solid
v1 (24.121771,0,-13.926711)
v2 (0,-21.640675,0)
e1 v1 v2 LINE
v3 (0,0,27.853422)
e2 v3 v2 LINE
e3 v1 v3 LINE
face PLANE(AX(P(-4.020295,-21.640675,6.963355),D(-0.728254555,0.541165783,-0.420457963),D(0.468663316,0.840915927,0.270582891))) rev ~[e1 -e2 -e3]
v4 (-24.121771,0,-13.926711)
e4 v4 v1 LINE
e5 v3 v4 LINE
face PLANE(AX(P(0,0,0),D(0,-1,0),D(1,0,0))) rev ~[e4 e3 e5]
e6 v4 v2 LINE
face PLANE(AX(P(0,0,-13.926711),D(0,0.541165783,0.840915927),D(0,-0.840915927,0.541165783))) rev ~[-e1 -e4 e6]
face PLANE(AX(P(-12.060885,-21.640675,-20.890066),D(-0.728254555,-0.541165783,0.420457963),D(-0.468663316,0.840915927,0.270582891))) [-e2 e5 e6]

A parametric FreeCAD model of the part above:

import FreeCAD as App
import Part
import Sketcher

V = App.Vector
Q = App.Units.Quantity

doc = App.newDocument("Part")
body = doc.addObject("PartDesign::Body", "Body")

# Sketch on XZ plane
sketch1 = body.newObject("Sketcher::SketchObject", "Sketch")
sketch1.AttachmentSupport = (doc.getObject("XZ_Plane"), [""])
sketch1.MapMode = "FlatFace"
sketch1.addGeometry([
    Part.LineSegment(V(0, 28, 0), V(-24, -14, 0)),
    Part.LineSegment(V(-24, -14, 0), V(24, -14, 0)),
    Part.LineSegment(V(24, -14, 0), V(0, 28, 0)),
], False)
sketch1.addConstraint([
    Sketcher.Constraint("Coincident", 0, 2, 1, 1),
    Sketcher.Constraint("Coincident", 1, 2, 2, 1),
    Sketcher.Constraint("Coincident", 2, 2, 0, 1),
    Sketcher.Constraint("Horizontal", 1),
    Sketcher.Constraint("PointOnObject", 2, 2, -2),
    Sketcher.Constraint("Equal", 0, 2),
    Sketcher.Constraint("Angle", 0, Q("-120 deg")),
    Sketcher.Constraint("DistanceX", 1, 1, 1, 2, 48.243541),
    Sketcher.Constraint("DistanceY", 0, 2, -1, 1, 13.926711),
])
pad1 = body.newObject("PartDesign::Pad", "Pad")
pad1.Profile = sketch1
pad1.Length = Q("2 in")

# Sketch on YZ plane
sketch2 = body.newObject("Sketcher::SketchObject", "Sketch001")
sketch2.AttachmentSupport = (doc.getObject("YZ_Plane"), [""])
sketch2.MapMode = "FlatFace"
sketch2.addGeometry([
    Part.LineSegment(V(-4, -24, 0), V(0, -14, 0)),  # 0
    Part.LineSegment(V(0, -14, 0), V(-22, 0, 0)),  # 1
    Part.LineSegment(V(-22, 0, 0), V(-53, 0, 0)),  # 2
    Part.LineSegment(V(-53, 0, 0), V(-53, -20, 0)),  # 3
    Part.LineSegment(V(-53, -20, 0), V(-4, -24, 0)),  # 4
], False)
sketch2.addConstraint([
    Sketcher.Constraint("Coincident", 0, 2, 1, 1),
    Sketcher.Constraint("Coincident", 1, 2, 2, 1),
    Sketcher.Constraint("Coincident", 2, 2, 3, 1),
    Sketcher.Constraint("Coincident", 3, 2, 4, 1),
    Sketcher.Constraint("Coincident", 4, 2, 0, 1),
    Sketcher.Constraint("Horizontal", 2),
    Sketcher.Constraint("Vertical", 3),
    Sketcher.Constraint("PointOnObject", 0, 2, -2),
    Sketcher.Constraint("PointOnObject", 1, 2, -1),
    Sketcher.Constraint("DistanceX", 2, 2, 2, 1, 31.807469),
    Sketcher.Constraint("DistanceY", 3, 2, 3, 1, 20.189162),
    Sketcher.Constraint("DistanceY", 0, 2, -1, 1, 13.926711),
    Sketcher.Constraint("DistanceY", 4, 2, 3, 2, 3.499851),
    Sketcher.Constraint("Distance", 0, 10.604428),
    Sketcher.Constraint("Distance", 1, 25.734648),
])
pocket1 = body.newObject("PartDesign::Pocket", "Pocket")
pocket1.Profile = sketch2
pocket1.Length = Q("3 in")
pocket1.Midplane = True

# Sketch on an angled plane
sketch3 = body.newObject("Sketcher::SketchObject", "Sketch002")
sketch3.Placement = App.Placement(V(-12.060885, 0, -20.890066), App.Rotation(V(0.866025404, 0, -0.5), V(0, 1, 0), V(0.5, 0, 0.866025404), "ZXY"))
sketch3.addGeometry([
    Part.LineSegment(V(0, -22, 0), V(-14, 0, 0)),
    Part.LineSegment(V(-14, 0, 0), V(-24, -57, 0)),
    Part.LineSegment(V(-24, -57, 0), V(0, -59, 0)),
    Part.LineSegment(V(0, -59, 0), V(0, -22, 0)),
], False)
sketch3.addConstraint([
    Sketcher.Constraint("Coincident", 0, 2, 1, 1),
    Sketcher.Constraint("Coincident", 1, 2, 2, 1),
    Sketcher.Constraint("Coincident", 2, 2, 3, 1),
    Sketcher.Constraint("Coincident", 3, 2, 0, 1),
    Sketcher.Constraint("Vertical", 3),
    Sketcher.Constraint("PointOnObject", 0, 2, -1),
    Sketcher.Constraint("PointOnObject", 2, 2, -2),
    Sketcher.Constraint("Distance", 1, 57.930702),
    Sketcher.Constraint("DistanceY", 3, 1, 3, 2, 37.02235),
    Sketcher.Constraint("DistanceX", 1, 2, -1, 1, 23.6785),
    Sketcher.Constraint("DistanceX", 0, 2, -1, 1, 13.926711),
    Sketcher.Constraint("Distance", 0, 25.734648),
])
pocket2 = body.newObject("PartDesign::Pocket", "Pocket001")
pocket2.Profile = sketch3
pocket2.Length = Q("3 in")
pocket2.Reversed = True

# Sketch on an angled plane
sketch4 = body.newObject("Sketcher::SketchObject", "Sketch003")
sketch4.Placement = App.Placement(V(-4.020295, 0, 6.963355), App.Rotation(V(0.866025404, 0, 0.5), V(0, -1, 0), V(0.5, 0, -0.866025404), "ZXY"))
sketch4.addGeometry([
    Part.LineSegment(V(-6, 52, 0), V(0, 22, 0)),  # 0
    Part.LineSegment(V(0, 22, 0), V(14, 0, 0)),  # 1
    Part.LineSegment(V(14, 0, 0), V(24, 42, 0)),  # 2
    Part.LineSegment(V(24, 42, 0), V(18, 52, 0)),  # 3
    Part.LineSegment(V(18, 52, 0), V(-6, 52, 0)),  # 4
], False)
sketch4.addConstraint([
    Sketcher.Constraint("Coincident", 0, 2, 1, 1),
    Sketcher.Constraint("Coincident", 1, 2, 2, 1),
    Sketcher.Constraint("Coincident", 2, 2, 3, 1),
    Sketcher.Constraint("Coincident", 3, 2, 4, 1),
    Sketcher.Constraint("Coincident", 4, 2, 0, 1),
    Sketcher.Constraint("Horizontal", 4),
    Sketcher.Constraint("PointOnObject", 0, 2, -2),
    Sketcher.Constraint("PointOnObject", 1, 2, -1),
    Sketcher.Constraint("DistanceX", 4, 2, 4, 1, 23.79853),
    Sketcher.Constraint("Distance", 0, 31.273178),
    Sketcher.Constraint("Distance", 2, 43.365929),
    Sketcher.Constraint("Distance", 3, 12.19521),
    Sketcher.Constraint("DistanceX", -1, 1, 1, 2, 13.926711),
    Sketcher.Constraint("DistanceX", -1, 1, 3, 2, 17.780179),
    Sketcher.Constraint("DistanceY", -1, 1, 3, 2, 52.329291),
])
pocket3 = body.newObject("PartDesign::Pocket", "Pocket002")
pocket3.Profile = sketch4
pocket3.Length = Q("3 in")
pocket3.Midplane = True

doc.recompute()
